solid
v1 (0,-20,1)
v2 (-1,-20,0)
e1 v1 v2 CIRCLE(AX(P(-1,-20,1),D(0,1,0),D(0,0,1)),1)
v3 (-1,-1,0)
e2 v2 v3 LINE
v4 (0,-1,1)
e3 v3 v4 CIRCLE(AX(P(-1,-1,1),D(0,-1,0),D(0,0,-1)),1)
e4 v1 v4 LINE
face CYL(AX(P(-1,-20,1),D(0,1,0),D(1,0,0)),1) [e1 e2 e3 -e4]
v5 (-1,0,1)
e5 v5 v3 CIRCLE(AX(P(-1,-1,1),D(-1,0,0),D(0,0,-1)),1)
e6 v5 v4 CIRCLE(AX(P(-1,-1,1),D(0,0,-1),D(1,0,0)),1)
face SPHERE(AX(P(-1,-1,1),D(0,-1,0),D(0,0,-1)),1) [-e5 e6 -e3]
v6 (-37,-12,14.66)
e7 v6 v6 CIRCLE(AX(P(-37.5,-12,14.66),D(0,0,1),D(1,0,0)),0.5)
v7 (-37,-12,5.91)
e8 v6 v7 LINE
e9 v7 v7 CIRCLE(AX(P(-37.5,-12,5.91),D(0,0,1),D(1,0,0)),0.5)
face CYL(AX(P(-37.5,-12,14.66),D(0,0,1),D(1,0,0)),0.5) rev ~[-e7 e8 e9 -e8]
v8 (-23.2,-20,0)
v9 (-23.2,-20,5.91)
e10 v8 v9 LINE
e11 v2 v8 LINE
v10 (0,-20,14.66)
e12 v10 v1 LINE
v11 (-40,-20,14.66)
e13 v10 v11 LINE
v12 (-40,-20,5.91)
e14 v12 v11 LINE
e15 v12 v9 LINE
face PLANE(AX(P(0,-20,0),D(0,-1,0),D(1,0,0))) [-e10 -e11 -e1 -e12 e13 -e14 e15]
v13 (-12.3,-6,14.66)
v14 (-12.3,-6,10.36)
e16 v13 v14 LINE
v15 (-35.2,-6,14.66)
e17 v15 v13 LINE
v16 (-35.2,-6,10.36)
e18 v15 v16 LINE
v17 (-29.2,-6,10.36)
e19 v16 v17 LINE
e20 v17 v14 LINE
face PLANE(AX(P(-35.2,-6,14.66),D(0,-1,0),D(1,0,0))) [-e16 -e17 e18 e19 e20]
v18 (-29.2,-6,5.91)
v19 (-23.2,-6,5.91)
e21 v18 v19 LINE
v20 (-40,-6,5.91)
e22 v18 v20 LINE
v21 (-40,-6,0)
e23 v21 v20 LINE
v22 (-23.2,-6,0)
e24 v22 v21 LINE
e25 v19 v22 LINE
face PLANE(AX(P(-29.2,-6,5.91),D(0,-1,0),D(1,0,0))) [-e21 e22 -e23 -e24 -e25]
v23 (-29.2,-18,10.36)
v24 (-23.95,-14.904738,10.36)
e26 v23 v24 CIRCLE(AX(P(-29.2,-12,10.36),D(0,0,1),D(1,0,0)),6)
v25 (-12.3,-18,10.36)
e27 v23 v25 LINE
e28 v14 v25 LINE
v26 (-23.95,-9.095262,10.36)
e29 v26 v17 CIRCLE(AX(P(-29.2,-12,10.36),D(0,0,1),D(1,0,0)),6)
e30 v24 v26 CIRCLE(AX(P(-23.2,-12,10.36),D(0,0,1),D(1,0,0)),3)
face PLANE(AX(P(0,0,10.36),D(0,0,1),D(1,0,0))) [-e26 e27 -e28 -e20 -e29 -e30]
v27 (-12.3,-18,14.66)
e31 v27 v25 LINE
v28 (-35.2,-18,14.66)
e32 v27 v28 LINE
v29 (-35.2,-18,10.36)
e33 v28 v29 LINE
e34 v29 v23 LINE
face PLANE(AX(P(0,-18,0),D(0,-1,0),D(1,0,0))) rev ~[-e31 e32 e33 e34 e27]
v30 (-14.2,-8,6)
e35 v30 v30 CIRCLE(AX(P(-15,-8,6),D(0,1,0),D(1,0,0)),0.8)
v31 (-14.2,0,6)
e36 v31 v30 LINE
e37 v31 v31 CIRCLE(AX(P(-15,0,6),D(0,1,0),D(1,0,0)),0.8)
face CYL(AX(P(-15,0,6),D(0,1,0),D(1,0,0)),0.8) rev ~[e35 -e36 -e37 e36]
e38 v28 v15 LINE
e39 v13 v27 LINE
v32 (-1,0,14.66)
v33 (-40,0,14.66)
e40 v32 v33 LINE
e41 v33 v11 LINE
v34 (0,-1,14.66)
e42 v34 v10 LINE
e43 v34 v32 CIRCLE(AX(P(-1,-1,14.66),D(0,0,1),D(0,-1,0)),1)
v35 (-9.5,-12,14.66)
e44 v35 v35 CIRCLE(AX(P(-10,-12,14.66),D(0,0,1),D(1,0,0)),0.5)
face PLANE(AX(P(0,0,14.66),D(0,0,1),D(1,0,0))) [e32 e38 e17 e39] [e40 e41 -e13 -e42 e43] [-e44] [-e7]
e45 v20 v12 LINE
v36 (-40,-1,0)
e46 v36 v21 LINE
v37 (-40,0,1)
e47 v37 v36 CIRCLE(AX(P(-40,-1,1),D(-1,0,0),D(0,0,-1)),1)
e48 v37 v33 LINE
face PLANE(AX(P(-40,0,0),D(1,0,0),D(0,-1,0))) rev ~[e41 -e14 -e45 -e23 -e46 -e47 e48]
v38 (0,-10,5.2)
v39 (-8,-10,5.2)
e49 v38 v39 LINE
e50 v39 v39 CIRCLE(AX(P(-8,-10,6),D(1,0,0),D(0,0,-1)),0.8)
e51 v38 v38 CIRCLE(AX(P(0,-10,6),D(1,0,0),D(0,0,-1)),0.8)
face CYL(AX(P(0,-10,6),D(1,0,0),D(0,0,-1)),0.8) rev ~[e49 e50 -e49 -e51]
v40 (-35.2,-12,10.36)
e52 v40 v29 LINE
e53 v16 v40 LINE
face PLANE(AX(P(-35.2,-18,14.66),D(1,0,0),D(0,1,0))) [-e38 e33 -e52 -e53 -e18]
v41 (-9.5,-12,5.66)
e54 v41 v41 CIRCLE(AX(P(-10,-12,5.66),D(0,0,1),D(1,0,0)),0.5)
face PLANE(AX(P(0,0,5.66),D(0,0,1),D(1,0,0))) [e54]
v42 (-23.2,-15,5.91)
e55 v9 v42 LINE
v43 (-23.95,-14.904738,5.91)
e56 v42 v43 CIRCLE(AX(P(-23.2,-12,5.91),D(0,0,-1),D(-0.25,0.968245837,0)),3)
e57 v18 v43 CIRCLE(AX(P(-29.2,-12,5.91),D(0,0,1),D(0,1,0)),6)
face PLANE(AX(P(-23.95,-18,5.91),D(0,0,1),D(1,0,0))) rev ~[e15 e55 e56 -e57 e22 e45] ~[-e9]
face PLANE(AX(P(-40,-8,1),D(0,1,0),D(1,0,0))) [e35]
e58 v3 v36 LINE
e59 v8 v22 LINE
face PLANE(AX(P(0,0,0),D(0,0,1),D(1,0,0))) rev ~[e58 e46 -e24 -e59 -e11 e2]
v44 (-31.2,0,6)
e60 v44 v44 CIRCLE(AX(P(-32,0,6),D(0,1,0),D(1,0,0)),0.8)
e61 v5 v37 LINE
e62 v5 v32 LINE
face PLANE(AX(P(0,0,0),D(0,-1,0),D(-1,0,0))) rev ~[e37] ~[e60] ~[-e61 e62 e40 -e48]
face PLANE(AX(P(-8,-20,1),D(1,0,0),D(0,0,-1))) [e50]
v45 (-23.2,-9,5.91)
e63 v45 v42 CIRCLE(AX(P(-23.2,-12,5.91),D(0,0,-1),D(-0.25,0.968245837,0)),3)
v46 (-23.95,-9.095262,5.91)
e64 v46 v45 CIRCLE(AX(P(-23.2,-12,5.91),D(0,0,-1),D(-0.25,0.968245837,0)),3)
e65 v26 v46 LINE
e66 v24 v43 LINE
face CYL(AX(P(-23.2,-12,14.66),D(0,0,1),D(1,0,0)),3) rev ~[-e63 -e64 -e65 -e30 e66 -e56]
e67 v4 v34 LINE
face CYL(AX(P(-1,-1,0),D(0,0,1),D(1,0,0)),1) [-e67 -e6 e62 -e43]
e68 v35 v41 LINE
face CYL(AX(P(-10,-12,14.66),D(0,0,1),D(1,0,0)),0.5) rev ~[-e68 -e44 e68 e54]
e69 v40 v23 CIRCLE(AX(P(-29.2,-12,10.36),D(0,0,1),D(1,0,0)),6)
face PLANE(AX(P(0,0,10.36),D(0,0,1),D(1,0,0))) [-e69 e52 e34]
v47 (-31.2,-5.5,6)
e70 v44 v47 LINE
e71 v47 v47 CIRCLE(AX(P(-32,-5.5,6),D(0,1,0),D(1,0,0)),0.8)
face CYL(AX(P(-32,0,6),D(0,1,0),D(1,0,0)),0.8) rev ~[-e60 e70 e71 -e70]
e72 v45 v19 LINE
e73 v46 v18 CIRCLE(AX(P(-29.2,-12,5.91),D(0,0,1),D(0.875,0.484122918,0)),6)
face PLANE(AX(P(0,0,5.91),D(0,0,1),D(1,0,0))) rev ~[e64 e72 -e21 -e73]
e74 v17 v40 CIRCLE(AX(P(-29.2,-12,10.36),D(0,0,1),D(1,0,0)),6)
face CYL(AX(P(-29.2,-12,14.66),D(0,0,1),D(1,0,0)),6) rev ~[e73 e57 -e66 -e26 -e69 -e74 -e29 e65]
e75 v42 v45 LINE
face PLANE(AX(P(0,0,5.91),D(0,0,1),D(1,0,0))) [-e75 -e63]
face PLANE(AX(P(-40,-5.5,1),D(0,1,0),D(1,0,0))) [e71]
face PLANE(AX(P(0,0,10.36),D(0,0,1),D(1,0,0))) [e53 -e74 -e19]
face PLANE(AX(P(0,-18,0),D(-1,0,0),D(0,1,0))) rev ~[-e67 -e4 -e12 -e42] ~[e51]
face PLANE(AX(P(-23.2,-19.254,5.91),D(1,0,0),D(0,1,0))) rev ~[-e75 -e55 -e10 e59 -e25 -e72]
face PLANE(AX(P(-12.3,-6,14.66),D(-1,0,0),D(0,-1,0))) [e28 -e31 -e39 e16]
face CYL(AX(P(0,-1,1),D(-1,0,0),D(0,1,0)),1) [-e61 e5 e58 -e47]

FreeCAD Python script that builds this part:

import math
import FreeCAD as App
import Part
import Sketcher
from FreeCAD import Vector
Q = App.Units.Quantity


def edges_at(feature, points):
    """Names of the edges that pass closest to the given points."""
    edges = feature.Shape.Edges
    near = lambda p: min(range(len(edges)), key=lambda i: edges[i].distToShape(Part.Vertex(*p))[0])
    return sorted({f"Edge{near(p) + 1}" for p in points})

doc = App.newDocument("Part")
body = doc.addObject("PartDesign::Body", "Body")

# Sketch on XY plane
sketch1 = doc.addObject("Sketcher::SketchObject", "Sketch")
body.addObject(sketch1)
sketch1.AttachmentSupport = (doc.XY_Plane, [""])
sketch1.MapMode = "FlatFace"
sketch1.addGeometry([
    Part.LineSegment(Vector(0, -18, 0), Vector(0, 0, 0)),
    Part.LineSegment(Vector(0, 0, 0), Vector(-40, 0, 0)),
    Part.LineSegment(Vector(-40, 0, 0), Vector(-40, -18, 0)),
    Part.LineSegment(Vector(-40, -18, 0), Vector(0, -18, 0)),
], False)
sketch1.addConstraint([
    Sketcher.Constraint("Coincident", 0, 2, 1, 1),
    Sketcher.Constraint("Coincident", 1, 2, 2, 1),
    Sketcher.Constraint("Coincident", 2, 2, 3, 1),
    Sketcher.Constraint("Coincident", 3, 2, 0, 1),
    Sketcher.Constraint("Vertical", 0),
    Sketcher.Constraint("Horizontal", 1),
    Sketcher.Constraint("Vertical", 2),
    Sketcher.Constraint("Horizontal", 3),
    Sketcher.Constraint("Coincident", 0, 2, -1, 1),
    Sketcher.Constraint("DistanceX", 1, 2, 1, 1, Q("40 mm")),
    Sketcher.Constraint("DistanceY", 0, 1, 0, 2, Q("18 mm")),
])
pad1 = doc.addObject("PartDesign::Pad", "Pad")
body.addObject(pad1)
pad1.Profile = sketch1
pad1.Length = 14.66

# Sketch on XY plane
sketch2 = doc.addObject("Sketcher::SketchObject", "Sketch001")
body.addObject(sketch2)
sketch2.AttachmentSupport = (doc.XY_Plane, [""])
sketch2.MapMode = "FlatFace"
sketch2.AttachmentOffset = App.Placement(Vector(0, 0, 14.66), App.Rotation())
sketch2.addGeometry([
    Part.LineSegment(Vector(-35, -18, 0), Vector(-12, -18, 0)),
    Part.LineSegment(Vector(-12, -18, 0), Vector(-12, -6, 0)),
    Part.LineSegment(Vector(-12, -6, 0), Vector(-35, -6, 0)),
    Part.LineSegment(Vector(-35, -6, 0), Vector(-35, -18, 0)),
], False)
sketch2.addConstraint([
    Sketcher.Constraint("Coincident", 0, 2, 1, 1),
    Sketcher.Constraint("Coincident", 1, 2, 2, 1),
    Sketcher.Constraint("Coincident", 2, 2, 3, 1),
    Sketcher.Constraint("Coincident", 3, 2, 0, 1),
    Sketcher.Constraint("Horizontal", 0),
    Sketcher.Constraint("Vertical", 1),
    Sketcher.Constraint("Horizontal", 2),
    Sketcher.Constraint("Vertical", 3),
    Sketcher.Constraint("DistanceY", 1, 1, 1, 2, Q("12 mm")),
    Sketcher.Constraint("DistanceY", 1, 2, -1, 1, Q("6 mm")),
    Sketcher.Constraint("DistanceX", 0, 1, 0, 2, Q("22.9 mm")),
    Sketcher.Constraint("DistanceX", 0, 2, -1, 1, Q("12.3 mm")),
])
pocket1 = doc.addObject("PartDesign::Pocket", "Pocket")
body.addObject(pocket1)
pocket1.Profile = sketch2
pocket1.Length = 4.3

# Sketch on XY plane
sketch3 = doc.addObject("Sketcher::SketchObject", "Sketch002")
body.addObject(sketch3)
sketch3.AttachmentSupport = (doc.XY_Plane, [""])
sketch3.MapMode = "FlatFace"
sketch3.AttachmentOffset = App.Placement(Vector(0, 0, 14.66), App.Rotation())
sketch3.addGeometry([
    Part.Circle(Vector(-37.5, -12, 0), Vector(0, 0, 1), 0.5),
    Part.Circle(Vector(-10, -12, 0), Vector(0, 0, 1), 0.5),
], False)
sketch3.addConstraint([
    Sketcher.Constraint("Equal", 0, 1),
    Sketcher.Constraint("Horizontal", 0, 3, 1, 3),
    Sketcher.Constraint("Diameter", 0, Q("1 mm")),
    Sketcher.Constraint("DistanceY", 0, 3, -1, 1, Q("12 mm")),
    Sketcher.Constraint("DistanceX", 0, 3, 1, 3, Q("27.5 mm")),
    Sketcher.Constraint("DistanceX", 1, 3, -1, 1, Q("10 mm")),
])
pocket2 = doc.addObject("PartDesign::Pocket", "Pocket001")
body.addObject(pocket2)
pocket2.Profile = sketch3
pocket2.Length = 9

# Sketch on XY plane
sketch4 = doc.addObject("Sketcher::SketchObject", "Sketch003")
body.addObject(sketch4)
sketch4.AttachmentSupport = (doc.XY_Plane, [""])
sketch4.MapMode = "FlatFace"
sketch4.AttachmentOffset = App.Placement(Vector(0, 0, 14.66), App.Rotation())
sketch4.addGeometry([
    Part.ArcOfCircle(Part.Circle(Vector(-23.2, -12, 0), Vector(0, 0, 1), 3), math.radians(-104), math.radians(104)),
    Part.ArcOfCircle(Part.Circle(Vector(-29.2, -12, 0), Vector(0, 0, 1), 6), math.radians(29), math.radians(331)),
], False)
sketch4.addConstraint([
    Sketcher.Constraint("Coincident", 0, 1, 1, 2),
    Sketcher.Constraint("Coincident", 1, 1, 0, 2),
    Sketcher.Constraint("Horizontal", 0, 3, 1, 3),
    Sketcher.Constraint("Radius", 0, Q("3 mm")),
    Sketcher.Constraint("Radius", 1, Q("6 mm")),
    Sketcher.Constraint("DistanceY", 0, 3, -1, 1, Q("12 mm")),
    Sketcher.Constraint("DistanceX", 1, 3, 0, 3, Q("6 mm")),
    Sketcher.Constraint("DistanceX", 0, 3, -1, 1, Q("23.2 mm")),
])
pocket3 = doc.addObject("PartDesign::Pocket", "Pocket002")
body.addObject(pocket3)
pocket3.Profile = sketch4
pocket3.Length = 8.75

# Sketch on XY plane
sketch5 = doc.addObject("Sketcher::SketchObject", "Sketch004")
body.addObject(sketch5)
sketch5.AttachmentSupport = (doc.XY_Plane, [""])
sketch5.MapMode = "FlatFace"
sketch5.AttachmentOffset = App.Placement(Vector(0, 0, 5.91), App.Rotation())
sketch5.addGeometry([
    Part.LineSegment(Vector(-23, -6, 0), Vector(-41, -6, 0)),
    Part.LineSegment(Vector(-41, -6, 0), Vector(-41, -19, 0)),
    Part.LineSegment(Vector(-41, -19, 0), Vector(-23, -19, 0)),
    Part.LineSegment(Vector(-23, -19, 0), Vector(-23, -6, 0)),
], False)
sketch5.addConstraint([
    Sketcher.Constraint("Coincident", 0, 2, 1, 1),
    Sketcher.Constraint("Coincident", 1, 2, 2, 1),
    Sketcher.Constraint("Coincident", 2, 2, 3, 1),
    Sketcher.Constraint("Coincident", 3, 2, 0, 1),
    Sketcher.Constraint("Horizontal", 0),
    Sketcher.Constraint("Vertical", 1),
    Sketcher.Constraint("Horizontal", 2),
    Sketcher.Constraint("Vertical", 3),
    Sketcher.Constraint("DistanceX", 2, 2, -1, 1, Q("23.2 mm")),
    Sketcher.Constraint("DistanceY", 0, 2, -1, 1, Q("6 mm")),
    Sketcher.Constraint("DistanceX", 0, 2, 0, 1, Q("18.261 mm")),
    Sketcher.Constraint("DistanceY", 1, 2, 1, 1, Q("13.254 mm")),
])
pocket4 = doc.addObject("PartDesign::Pocket", "Pocket003")
body.addObject(pocket4)
pocket4.Profile = sketch5
pocket4.Length = 8.75

# Sketch on XZ plane
sketch6 = doc.addObject("Sketcher::SketchObject", "Sketch005")
body.addObject(sketch6)
sketch6.AttachmentSupport = (doc.XZ_Plane, [""])
sketch6.MapMode = "FlatFace"
sketch6.AttachmentOffset = App.Placement(Vector(0, 0, 18), App.Rotation())
sketch6.addGeometry([
    Part.LineSegment(Vector(-23, 0, 0), Vector(0, 0, 0)),  # 0
    Part.LineSegment(Vector(0, 0, 0), Vector(0, 15, 0)),  # 1
    Part.LineSegment(Vector(0, 15, 0), Vector(-40, 15, 0)),  # 2
    Part.LineSegment(Vector(-40, 15, 0), Vector(-40, 6, 0)),  # 3
    Part.LineSegment(Vector(-40, 6, 0), Vector(-23, 6, 0)),  # 4
    Part.LineSegment(Vector(-23, 6, 0), Vector(-23, 0, 0)),  # 5
], False)
sketch6.addConstraint([
    Sketcher.Constraint("Coincident", 0, 2, 1, 1),
    Sketcher.Constraint("Coincident", 1, 2, 2, 1),
    Sketcher.Constraint("Coincident", 2, 2, 3, 1),
    Sketcher.Constraint("Coincident", 3, 2, 4, 1),
    Sketcher.Constraint("Coincident", 4, 2, 5, 1),
    Sketcher.Constraint("Coincident", 5, 2, 0, 1),
    Sketcher.Constraint("Horizontal", 0),
    Sketcher.Constraint("Vertical", 1),
    Sketcher.Constraint("Horizontal", 2),
    Sketcher.Constraint("Vertical", 3),
    Sketcher.Constraint("Horizontal", 4),
    Sketcher.Constraint("Vertical", 5),
    Sketcher.Constraint("Coincident", 0, 2, -1, 1),
    Sketcher.Constraint("DistanceX", 2, 2, 2, 1, Q("40 mm")),
    Sketcher.Constraint("DistanceX", 0, 1, 0, 2, Q("23.2 mm")),
    Sketcher.Constraint("DistanceY", 1, 1, 1, 2, Q("14.66 mm")),
    Sketcher.Constraint("DistanceY", 3, 2, 3, 1, Q("8.75 mm")),
])
pad2 = doc.addObject("PartDesign::Pad", "Pad001")
body.addObject(pad2)
pad2.Profile = sketch6
pad2.Length = 2
doc.recompute()

fillet = doc.addObject("PartDesign::Fillet", "Fillet")
body.addObject(fillet)
fillet.Base = (pad2, edges_at(pad2, [(0, -10, 0), (-20, 0, 0), (0, 0, 7.33)]))
fillet.Radius = 1

# Sketch on YZ plane
sketch7 = doc.addObject("Sketcher::SketchObject", "Sketch006")
body.addObject(sketch7)
sketch7.AttachmentSupport = (doc.YZ_Plane, [""])
sketch7.MapMode = "FlatFace"
sketch7.addGeometry(Part.Circle(Vector(-10, 6, 0), Vector(0, 0, 1), 0.8), False)
sketch7.addConstraint([
    Sketcher.Constraint("Diameter", 0, Q("1.6 mm")),
    Sketcher.Constraint("DistanceX", 0, 3, -1, 1, Q("10 mm")),
    Sketcher.Constraint("DistanceY", -1, 1, 0, 3, Q("6 mm")),
])
pocket5 = doc.addObject("PartDesign::Pocket", "Pocket004")
body.addObject(pocket5)
pocket5.Profile = sketch7
pocket5.Length = 8

# Sketch on XZ plane
sketch8 = doc.addObject("Sketcher::SketchObject", "Sketch007")
body.addObject(sketch8)
sketch8.AttachmentSupport = (doc.XZ_Plane, [""])
sketch8.MapMode = "FlatFace"
sketch8.addGeometry(Part.Circle(Vector(-15, 6, 0), Vector(0, 0, 1), 0.8), False)
sketch8.addConstraint([
    Sketcher.Constraint("Diameter", 0, Q("1.6 mm")),
    Sketcher.Constraint("DistanceX", 0, 3, -1, 1, Q("15 mm")),
    Sketcher.Constraint("DistanceY", -1, 1, 0, 3, Q("6 mm")),
])
pocket6 = doc.addObject("PartDesign::Pocket", "Pocket005")
body.addObject(pocket6)
pocket6.Profile = sketch8
pocket6.Length = 8
pocket6.Reversed = True

# Sketch on XZ plane
sketch9 = doc.addObject("Sketcher::SketchObject", "Sketch008")
body.addObject(sketch9)
sketch9.AttachmentSupport = (doc.XZ_Plane, [""])
sketch9.MapMode = "FlatFace"
sketch9.addGeometry(Part.Circle(Vector(-32, 6, 0), Vector(0, 0, 1), 0.8), False)
sketch9.addConstraint([
    Sketcher.Constraint("Diameter", 0, Q("1.6 mm")),
    Sketcher.Constraint("DistanceY", -1, 1, 0, 3, Q("6 mm")),
    Sketcher.Constraint("DistanceX", 0, 3, -1, 1, Q("32 mm")),
])
pocket7 = doc.addObject("PartDesign::Pocket", "Pocket006")
body.addObject(pocket7)
pocket7.Profile = sketch9
pocket7.Length = 5.5
pocket7.Reversed = True

doc.recompute()
